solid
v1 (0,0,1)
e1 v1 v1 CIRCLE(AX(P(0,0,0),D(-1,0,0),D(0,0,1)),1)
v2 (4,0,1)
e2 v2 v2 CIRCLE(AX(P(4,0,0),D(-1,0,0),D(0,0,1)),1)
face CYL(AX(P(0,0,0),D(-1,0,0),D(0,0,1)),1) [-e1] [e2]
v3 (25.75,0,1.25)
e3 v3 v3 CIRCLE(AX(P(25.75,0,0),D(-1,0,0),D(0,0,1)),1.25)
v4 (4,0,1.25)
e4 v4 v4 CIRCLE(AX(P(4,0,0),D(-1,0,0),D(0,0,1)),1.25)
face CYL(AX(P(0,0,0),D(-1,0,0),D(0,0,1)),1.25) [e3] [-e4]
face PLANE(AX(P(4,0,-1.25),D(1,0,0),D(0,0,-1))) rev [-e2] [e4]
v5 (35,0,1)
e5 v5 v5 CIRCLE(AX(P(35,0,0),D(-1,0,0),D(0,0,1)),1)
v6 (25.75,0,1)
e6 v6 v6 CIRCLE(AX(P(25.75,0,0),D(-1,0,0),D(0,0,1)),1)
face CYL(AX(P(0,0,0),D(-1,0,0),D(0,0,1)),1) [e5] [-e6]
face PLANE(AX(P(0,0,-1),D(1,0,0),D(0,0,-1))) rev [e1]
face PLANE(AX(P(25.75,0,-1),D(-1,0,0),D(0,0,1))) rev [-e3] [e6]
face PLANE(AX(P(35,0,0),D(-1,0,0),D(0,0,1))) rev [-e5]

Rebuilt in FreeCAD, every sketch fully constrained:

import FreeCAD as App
import Part
import Sketcher
Q = App.Units.Quantity


def add_polygon(sketch, points):
    """Adds a closed chain of lines whose ends are joined by coincident constraints."""
    first, n = sketch.GeometryCount, len(points)
    for a, b in zip(points, points[1:] + points[:1]):
        sketch.addGeometry(Part.LineSegment(App.Vector(*a, 0), App.Vector(*b, 0)), False)
    for i in range(n):
        sketch.addConstraint(Sketcher.Constraint("Coincident", first + i, 2, first + (i + 1) % n, 1))

doc = App.newDocument("Part")
body = doc.addObject("PartDesign::Body", "Body")

sketch1 = body.newObject("Sketcher::SketchObject", "Sketch")
sketch1.AttachmentSupport = (doc.getObject("XZ_Plane"), [""])
sketch1.MapMode = "FlatFace"
add_polygon(sketch1, [(0, 0), (35, 0), (35, -1), (25.75, -1), (25.75, -1.25), (4, -1.25), (4, -1), (0, -1)])
sketch1.addConstraint([
    Sketcher.Constraint("Horizontal", 0),
    Sketcher.Constraint("Vertical", 1),
    Sketcher.Constraint("Horizontal", 2),
    Sketcher.Constraint("Vertical", 3),
    Sketcher.Constraint("Horizontal", 4),
    Sketcher.Constraint("Vertical", 5),
    Sketcher.Constraint("Horizontal", 6),
    Sketcher.Constraint("Vertical", 7),
    Sketcher.Constraint("Coincident", 7, 2, -1, 1),
    Sketcher.Constraint("Horizontal", 2, 2, 5, 2),
    Sketcher.Constraint("DistanceX", 0, 1, 0, 2, Q("35 mm")),
    Sketcher.Constraint("DistanceX", 6, 2, 6, 1, Q("4 mm")),
    Sketcher.Constraint("DistanceY", 1, 2, 1, 1, Q("1 mm")),
    Sketcher.Constraint("DistanceX", 2, 2, 2, 1, Q("9.25 mm")),
    Sketcher.Constraint("DistanceY", 3, 2, 3, 1, Q("0.25 mm")),
])
revolution = body.newObject("PartDesign::Revolution", "Revolution")
revolution.Profile = sketch1
revolution.ReferenceAxis = (sketch1, ["H_Axis"])
revolution.Angle = 360

doc.recompute()
